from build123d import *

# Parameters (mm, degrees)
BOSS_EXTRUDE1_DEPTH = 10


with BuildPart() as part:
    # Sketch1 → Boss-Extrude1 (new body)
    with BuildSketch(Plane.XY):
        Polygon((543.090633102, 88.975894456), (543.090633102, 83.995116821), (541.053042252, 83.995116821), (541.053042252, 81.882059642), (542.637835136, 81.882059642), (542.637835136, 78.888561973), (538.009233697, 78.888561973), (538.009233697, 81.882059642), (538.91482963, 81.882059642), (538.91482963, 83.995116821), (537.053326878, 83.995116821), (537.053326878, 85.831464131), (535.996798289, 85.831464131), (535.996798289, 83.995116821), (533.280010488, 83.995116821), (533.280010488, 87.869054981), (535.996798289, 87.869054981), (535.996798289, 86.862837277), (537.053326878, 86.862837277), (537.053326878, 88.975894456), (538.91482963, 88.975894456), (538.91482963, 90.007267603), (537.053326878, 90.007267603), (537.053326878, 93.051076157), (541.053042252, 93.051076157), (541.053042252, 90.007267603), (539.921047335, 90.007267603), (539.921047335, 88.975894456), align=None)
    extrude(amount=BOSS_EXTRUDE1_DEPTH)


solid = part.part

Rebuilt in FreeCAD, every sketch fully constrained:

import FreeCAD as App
import Part
import Sketcher
Q = App.Units.Quantity


def add_polygon(sketch, points):
    """Adds a closed chain of lines whose ends are joined by coincident constraints."""
    first, n = sketch.GeometryCount, len(points)
    for a, b in zip(points, points[1:] + points[:1]):
        sketch.addGeometry(Part.LineSegment(App.Vector(*a, 0), App.Vector(*b, 0)), False)
    for i in range(n):
        sketch.addConstraint(Sketcher.Constraint("Coincident", first + i, 2, first + (i + 1) % n, 1))

doc = App.newDocument("Part")
body = doc.addObject("PartDesign::Body", "Body")

sketch1 = doc.addObject("Sketcher::SketchObject", "Sketch")
body.addObject(sketch1)
sketch1.AttachmentSupport = (doc.XY_Plane, [""])
sketch1.MapMode = "FlatFace"
add_polygon(sketch1, [(543.1, 84), (543.1, 89), (539.9, 89), (539.9, 90), (541.1, 90), (541.1, 93.1), (537.1, 93.1), (537.1, 90), (538.9, 90), (538.9, 89), (537.1, 89), (537.1, 86.9), (536, 86.9), (536, 87.9), (533.3, 87.9), (533.3, 84), (536, 84), (536, 85.8), (537.1, 85.8), (537.1, 84), (538.9, 84), (538.9, 81.9), (538, 81.9), (538, 78.9), (542.6, 78.9), (542.6, 81.9), (541.1, 81.9), (541.1, 84)])
sketch1.addConstraint([
    Sketcher.Constraint("Vertical", 0),
    Sketcher.Constraint("Horizontal", 1),
    Sketcher.Constraint("Vertical", 2),
    Sketcher.Constraint("Horizontal", 3),
    Sketcher.Constraint("Vertical", 4),
    Sketcher.Constraint("Horizontal", 5),
    Sketcher.Constraint("Vertical", 6),
    Sketcher.Constraint("Horizontal", 7),
    Sketcher.Constraint("Vertical", 8),
    Sketcher.Constraint("Horizontal", 9),
    Sketcher.Constraint("Vertical", 10),
    Sketcher.Constraint("Horizontal", 11),
    Sketcher.Constraint("Vertical", 12),
    Sketcher.Constraint("Horizontal", 13),
    Sketcher.Constraint("Vertical", 14),
    Sketcher.Constraint("Horizontal", 15),
    Sketcher.Constraint("Vertical", 16),
    Sketcher.Constraint("Horizontal", 17),
    Sketcher.Constraint("Vertical", 18),
    Sketcher.Constraint("Horizontal", 19),
    Sketcher.Constraint("Vertical", 20),
    Sketcher.Constraint("Horizontal", 21),
    Sketcher.Constraint("Vertical", 22),
    Sketcher.Constraint("Horizontal", 23),
    Sketcher.Constraint("Vertical", 24),
    Sketcher.Constraint("Horizontal", 25),
    Sketcher.Constraint("Vertical", 26),
    Sketcher.Constraint("Horizontal", 27),
    Sketcher.Constraint("Horizontal", 3, 2, 6, 2),
    Sketcher.Constraint("Horizontal", 1, 2, 8, 2),
    Sketcher.Constraint("Horizontal", 15, 2, 18, 2),
    Sketcher.Constraint("Horizontal", 21, 2, 24, 2),
    Sketcher.Constraint("Horizontal", 19, 2, 26, 2),
    Sketcher.Constraint("Vertical", 6, 2, 9, 2),
    Sketcher.Constraint("Vertical", 12, 2, 15, 2),
    Sketcher.Constraint("Vertical", 10, 2, 17, 2),
    Sketcher.Constraint("Vertical", 8, 2, 19, 2),
    Sketcher.Constraint("Vertical", 4, 2, 25, 2),
    Sketcher.Constraint("Equal", 10, 20),
    Sketcher.Constraint("DistanceX", 23, 1, 23, 2, Q("4.628601 mm")),
    Sketcher.Constraint("DistanceX", 11, 2, 11, 1, Q("1.056529 mm")),
    Sketcher.Constraint("DistanceX", 27, 1, 27, 2, Q("2.037591 mm")),
    Sketcher.Constraint("DistanceY", 4, 1, 4, 2, Q("3.043809 mm")),
    Sketcher.Constraint("DistanceY", 14, 2, 14, 1, Q("3.873938 mm")),
    Sketcher.Constraint("DistanceX", -1, 1, 11, 2, Q("535.996798 mm")),
    Sketcher.Constraint("DistanceX", 1, 2, 1, 1, Q("3.169586 mm")),
    Sketcher.Constraint("DistanceX", 5, 2, 5, 1, Q("3.999715 mm")),
    Sketcher.Constraint("DistanceX", 7, 1, 7, 2, Q("1.861503 mm")),
    Sketcher.Constraint("DistanceX", 13, 2, 13, 1, Q("2.716788 mm")),
    Sketcher.Constraint("DistanceX", 21, 2, 21, 1, Q("0.905596 mm")),
    Sketcher.Constraint("DistanceY", 0, 1, 0, 2, Q("4.980778 mm")),
    Sketcher.Constraint("DistanceY", 2, 1, 2, 2, Q("1.031373 mm")),
    Sketcher.Constraint("DistanceY", 10, 2, 10, 1, Q("2.113057 mm")),
    Sketcher.Constraint("DistanceY", 16, 1, 16, 2, Q("1.836347 mm")),
    Sketcher.Constraint("DistanceY", 22, 2, 22, 1, Q("2.993498 mm")),
    Sketcher.Constraint("DistanceY", -1, 1, 20, 2, Q("81.88206 mm")),
])
pad1 = doc.addObject("PartDesign::Pad", "Pad")
body.addObject(pad1)
pad1.Profile = sketch1
pad1.Length = 10

doc.recompute()
